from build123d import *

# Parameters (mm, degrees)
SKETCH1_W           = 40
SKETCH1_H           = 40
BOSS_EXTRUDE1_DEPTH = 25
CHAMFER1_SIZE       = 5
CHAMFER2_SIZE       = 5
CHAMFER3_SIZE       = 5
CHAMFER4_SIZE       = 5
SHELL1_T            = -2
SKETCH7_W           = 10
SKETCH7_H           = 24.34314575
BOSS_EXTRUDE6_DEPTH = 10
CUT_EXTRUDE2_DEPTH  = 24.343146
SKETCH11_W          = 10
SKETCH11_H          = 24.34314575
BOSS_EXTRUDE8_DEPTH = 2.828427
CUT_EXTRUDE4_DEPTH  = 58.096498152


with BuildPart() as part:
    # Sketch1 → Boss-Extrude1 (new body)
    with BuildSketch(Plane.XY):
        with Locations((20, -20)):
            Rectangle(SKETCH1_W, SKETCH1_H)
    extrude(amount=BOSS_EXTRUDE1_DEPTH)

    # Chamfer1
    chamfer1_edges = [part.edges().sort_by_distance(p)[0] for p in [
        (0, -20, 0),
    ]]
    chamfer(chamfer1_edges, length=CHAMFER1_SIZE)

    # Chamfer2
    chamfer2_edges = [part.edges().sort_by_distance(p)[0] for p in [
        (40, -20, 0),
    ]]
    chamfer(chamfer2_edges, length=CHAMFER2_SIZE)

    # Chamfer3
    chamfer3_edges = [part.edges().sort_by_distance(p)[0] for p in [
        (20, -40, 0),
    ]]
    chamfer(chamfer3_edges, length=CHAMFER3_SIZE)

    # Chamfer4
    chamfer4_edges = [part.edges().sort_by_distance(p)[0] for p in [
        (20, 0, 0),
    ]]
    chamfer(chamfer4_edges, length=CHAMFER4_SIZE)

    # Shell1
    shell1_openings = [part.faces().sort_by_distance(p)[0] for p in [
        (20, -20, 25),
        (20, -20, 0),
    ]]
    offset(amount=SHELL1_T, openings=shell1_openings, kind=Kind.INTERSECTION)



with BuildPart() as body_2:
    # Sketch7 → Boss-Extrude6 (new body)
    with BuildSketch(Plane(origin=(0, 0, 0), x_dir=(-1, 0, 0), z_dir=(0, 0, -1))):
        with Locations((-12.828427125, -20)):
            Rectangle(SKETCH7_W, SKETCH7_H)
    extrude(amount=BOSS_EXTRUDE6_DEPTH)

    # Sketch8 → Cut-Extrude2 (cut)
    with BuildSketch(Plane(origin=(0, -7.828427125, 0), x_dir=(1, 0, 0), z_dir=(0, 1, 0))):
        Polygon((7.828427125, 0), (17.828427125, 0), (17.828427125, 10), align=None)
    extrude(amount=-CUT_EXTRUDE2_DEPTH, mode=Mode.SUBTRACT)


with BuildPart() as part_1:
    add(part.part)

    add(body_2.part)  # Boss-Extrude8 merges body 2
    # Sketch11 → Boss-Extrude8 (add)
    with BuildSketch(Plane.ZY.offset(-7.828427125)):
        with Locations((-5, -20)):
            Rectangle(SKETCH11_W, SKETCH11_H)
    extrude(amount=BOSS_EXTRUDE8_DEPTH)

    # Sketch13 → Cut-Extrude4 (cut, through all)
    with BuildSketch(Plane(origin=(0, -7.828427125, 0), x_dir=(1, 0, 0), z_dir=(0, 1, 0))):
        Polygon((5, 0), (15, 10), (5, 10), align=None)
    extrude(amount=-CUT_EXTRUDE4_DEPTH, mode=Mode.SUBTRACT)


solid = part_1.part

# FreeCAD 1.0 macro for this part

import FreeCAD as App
import Part
import Sketcher
Q = App.Units.Quantity


def edges_at(feature, points):
    """Names of the edges that pass closest to the given points."""
    edges = feature.Shape.Edges
    near = lambda p: min(range(len(edges)), key=lambda i: edges[i].distToShape(Part.Vertex(*p))[0])
    return sorted({f"Edge{near(p) + 1}" for p in points})


def faces_at(feature, points):
    """Names of the faces that lie closest to the given points."""
    faces = feature.Shape.Faces
    near = lambda p: min(range(len(faces)), key=lambda i: faces[i].distToShape(Part.Vertex(*p))[0])
    return sorted({f"Face{near(p) + 1}" for p in points})

doc = App.newDocument("Part")
body = doc.addObject("PartDesign::Body", "Body")

sketch1 = doc.addObject("Sketcher::SketchObject", "Sketch")
body.addObject(sketch1)
sketch1.AttachmentSupport = (doc.XY_Plane, [""])
sketch1.MapMode = "FlatFace"
sketch1.addGeometry(Part.LineSegment(App.Vector(0, 0, 0), App.Vector(0, -40, 0)), False)
sketch1.addGeometry(Part.LineSegment(App.Vector(0, -40, 0), App.Vector(40, -40, 0)), False)
sketch1.addGeometry(Part.LineSegment(App.Vector(40, -40, 0), App.Vector(40, 0, 0)), False)
sketch1.addGeometry(Part.LineSegment(App.Vector(40, 0, 0), App.Vector(0, 0, 0)), False)
sketch1.addConstraint(Sketcher.Constraint("Coincident", 0, 2, 1, 1))
sketch1.addConstraint(Sketcher.Constraint("Coincident", 1, 2, 2, 1))
sketch1.addConstraint(Sketcher.Constraint("Coincident", 2, 2, 3, 1))
sketch1.addConstraint(Sketcher.Constraint("Coincident", 3, 2, 0, 1))
sketch1.addConstraint(Sketcher.Constraint("Vertical", 0))
sketch1.addConstraint(Sketcher.Constraint("Horizontal", 1))
sketch1.addConstraint(Sketcher.Constraint("Vertical", 2))
sketch1.addConstraint(Sketcher.Constraint("Horizontal", 3))
sketch1.addConstraint(Sketcher.Constraint("Coincident", 3, 2, -1, 1))
sketch1.addConstraint(Sketcher.Constraint("Equal", 3, 0))
sketch1.addConstraint(Sketcher.Constraint("DistanceX", 1, 1, 1, 2, Q("40 mm")))
pad1 = doc.addObject("PartDesign::Pad", "Pad")
body.addObject(pad1)
pad1.Profile = sketch1
pad1.Length = 25
doc.recompute()

chamfer = doc.addObject("PartDesign::Chamfer", "Chamfer")
body.addObject(chamfer)
chamfer.Base = (pad1, edges_at(pad1, [(0, -20, 0)]))
chamfer.Size = 5
doc.recompute()

chamfer2 = doc.addObject("PartDesign::Chamfer", "Chamfer001")
body.addObject(chamfer2)
chamfer2.Base = (chamfer, edges_at(chamfer, [(40, -20, 0)]))
chamfer2.Size = 5
doc.recompute()

chamfer3 = doc.addObject("PartDesign::Chamfer", "Chamfer002")
body.addObject(chamfer3)
chamfer3.Base = (chamfer2, edges_at(chamfer2, [(20, -40, 0)]))
chamfer3.Size = 5
doc.recompute()

chamfer4 = doc.addObject("PartDesign::Chamfer", "Chamfer003")
body.addObject(chamfer4)
chamfer4.Base = (chamfer3, edges_at(chamfer3, [(20, 0, 0)]))
chamfer4.Size = 5
doc.recompute()

thickness = doc.addObject("PartDesign::Thickness", "Thickness")
body.addObject(thickness)
thickness.Base = (chamfer4, faces_at(chamfer4, [(20, -20, 25), (20, -20, 0)]))
thickness.Value = 2
thickness.Reversed = True
thickness.Join = "Intersection"
body2 = doc.addObject("PartDesign::Body", "Body001")

sketch2 = doc.addObject("Sketcher::SketchObject", "Sketch001")
body2.addObject(sketch2)
sketch2.AttachmentSupport = (doc.getObject("XY_Plane001"), [""])
sketch2.MapMode = "FlatFace"
sketch2.addGeometry(Part.LineSegment(App.Vector(18, -8, 0), App.Vector(18, -32, 0)), False)
sketch2.addGeometry(Part.LineSegment(App.Vector(18, -32, 0), App.Vector(8, -32, 0)), False)
sketch2.addGeometry(Part.LineSegment(App.Vector(8, -32, 0), App.Vector(8, -8, 0)), False)
sketch2.addGeometry(Part.LineSegment(App.Vector(8, -8, 0), App.Vector(18, -8, 0)), False)
sketch2.addConstraint(Sketcher.Constraint("Coincident", 0, 2, 1, 1))
sketch2.addConstraint(Sketcher.Constraint("Coincident", 1, 2, 2, 1))
sketch2.addConstraint(Sketcher.Constraint("Coincident", 2, 2, 3, 1))
sketch2.addConstraint(Sketcher.Constraint("Coincident", 3, 2, 0, 1))
sketch2.addConstraint(Sketcher.Constraint("Vertical", 0))
sketch2.addConstraint(Sketcher.Constraint("Horizontal", 1))
sketch2.addConstraint(Sketcher.Constraint("Vertical", 2))
sketch2.addConstraint(Sketcher.Constraint("Horizontal", 3))
sketch2.addConstraint(Sketcher.Constraint("DistanceX", 1, 2, 1, 1, Q("10 mm")))
sketch2.addConstraint(Sketcher.Constraint("DistanceY", 0, 2, 0, 1, Q("24.343146 mm")))
sketch2.addConstraint(Sketcher.Constraint("DistanceX", -1, 1, 0, 2, Q("17.828427 mm")))
sketch2.addConstraint(Sketcher.Constraint("DistanceY", 0, 2, -1, 1, Q("32.171573 mm")))
pad2 = doc.addObject("PartDesign::Pad", "Pad001")
body2.addObject(pad2)
pad2.Profile = sketch2
pad2.Length = 10
pad2.Reversed = True

sketch3 = doc.addObject("Sketcher::SketchObject", "Sketch002")
body2.addObject(sketch3)
sketch3.AttachmentSupport = (doc.getObject("XZ_Plane001"), [""])
sketch3.MapMode = "FlatFace"
sketch3.AttachmentOffset = App.Placement(App.Vector(0, 0, 7.828427), App.Rotation())
sketch3.addGeometry(Part.LineSegment(App.Vector(8, 0, 0), App.Vector(18, 0, 0)), False)
sketch3.addGeometry(Part.LineSegment(App.Vector(18, 0, 0), App.Vector(18, -10, 0)), False)
sketch3.addGeometry(Part.LineSegment(App.Vector(18, -10, 0), App.Vector(8, 0, 0)), False)
sketch3.addConstraint(Sketcher.Constraint("Coincident", 0, 2, 1, 1))
sketch3.addConstraint(Sketcher.Constraint("Coincident", 1, 2, 2, 1))
sketch3.addConstraint(Sketcher.Constraint("Coincident", 2, 2, 0, 1))
sketch3.addConstraint(Sketcher.Constraint("Horizontal", 0))
sketch3.addConstraint(Sketcher.Constraint("Vertical", 1))
sketch3.addConstraint(Sketcher.Constraint("PointOnObject", 0, 2, -1))
sketch3.addConstraint(Sketcher.Constraint("Equal", 0, 1))
sketch3.addConstraint(Sketcher.Constraint("DistanceX", 0, 1, 0, 2, Q("10 mm")))
sketch3.addConstraint(Sketcher.Constraint("DistanceX", -1, 1, 0, 2, Q("17.828427 mm")))
pocket1 = doc.addObject("PartDesign::Pocket", "Pocket")
body2.addObject(pocket1)
pocket1.Profile = sketch3
pocket1.Length = 24.343146
pocket1.Reversed = True
body.AllowCompound = True
doc.recompute()

boolean = doc.addObject("PartDesign::Boolean", "Boolean")
body.addObject(boolean)
boolean.Type = "Fuse"
boolean.addObjects([body2])

sketch4 = doc.addObject("Sketcher::SketchObject", "Sketch003")
body.addObject(sketch4)
sketch4.AttachmentSupport = (doc.YZ_Plane, [""])
sketch4.MapMode = "FlatFace"
sketch4.AttachmentOffset = App.Placement(App.Vector(0, 0, 7.828427), App.Rotation())
sketch4.addGeometry(Part.LineSegment(App.Vector(-8, -10, 0), App.Vector(-32, -10, 0)), False)
sketch4.addGeometry(Part.LineSegment(App.Vector(-32, -10, 0), App.Vector(-32, 0, 0)), False)
sketch4.addGeometry(Part.LineSegment(App.Vector(-32, 0, 0), App.Vector(-8, 0, 0)), False)
sketch4.addGeometry(Part.LineSegment(App.Vector(-8, 0, 0), App.Vector(-8, -10, 0)), False)
sketch4.addConstraint(Sketcher.Constraint("Coincident", 0, 2, 1, 1))
sketch4.addConstraint(Sketcher.Constraint("Coincident", 1, 2, 2, 1))
sketch4.addConstraint(Sketcher.Constraint("Coincident", 2, 2, 3, 1))
sketch4.addConstraint(Sketcher.Constraint("Coincident", 3, 2, 0, 1))
sketch4.addConstraint(Sketcher.Constraint("Horizontal", 0))
sketch4.addConstraint(Sketcher.Constraint("Vertical", 1))
sketch4.addConstraint(Sketcher.Constraint("Horizontal", 2))
sketch4.addConstraint(Sketcher.Constraint("Vertical", 3))
sketch4.addConstraint(Sketcher.Constraint("PointOnObject", 1, 2, -1))
sketch4.addConstraint(Sketcher.Constraint("DistanceY", 1, 1, 1, 2, Q("10 mm")))
sketch4.addConstraint(Sketcher.Constraint("DistanceX", 0, 2, 0, 1, Q("24.343146 mm")))
sketch4.addConstraint(Sketcher.Constraint("DistanceX", 0, 2, -1, 1, Q("32.171573 mm")))
pad3 = doc.addObject("PartDesign::Pad", "Pad002")
body.addObject(pad3)
pad3.Profile = sketch4
pad3.Length = 2.828427
pad3.Reversed = True

sketch5 = doc.addObject("Sketcher::SketchObject", "Sketch004")
body.addObject(sketch5)
sketch5.AttachmentSupport = (doc.XZ_Plane, [""])
sketch5.MapMode = "FlatFace"
sketch5.AttachmentOffset = App.Placement(App.Vector(0, 0, 7.828427), App.Rotation())
sketch5.addGeometry(Part.LineSegment(App.Vector(5, 0, 0), App.Vector(15, -10, 0)), False)
sketch5.addGeometry(Part.LineSegment(App.Vector(15, -10, 0), App.Vector(5, -10, 0)), False)
sketch5.addGeometry(Part.LineSegment(App.Vector(5, -10, 0), App.Vector(5, 0, 0)), False)
sketch5.addConstraint(Sketcher.Constraint("Coincident", 0, 2, 1, 1))
sketch5.addConstraint(Sketcher.Constraint("Coincident", 1, 2, 2, 1))
sketch5.addConstraint(Sketcher.Constraint("Coincident", 2, 2, 0, 1))
sketch5.addConstraint(Sketcher.Constraint("Horizontal", 1))
sketch5.addConstraint(Sketcher.Constraint("Vertical", 2))
sketch5.addConstraint(Sketcher.Constraint("PointOnObject", 2, 2, -1))
sketch5.addConstraint(Sketcher.Constraint("Equal", 1, 2))
sketch5.addConstraint(Sketcher.Constraint("DistanceX", 1, 2, 1, 1, Q("10 mm")))
sketch5.addConstraint(Sketcher.Constraint("DistanceX", -1, 1, 0, 2, Q("15 mm")))
pocket2 = doc.addObject("PartDesign::Pocket", "Pocket001")
body.addObject(pocket2)
pocket2.Profile = sketch5
pocket2.Type = "ThroughAll"
pocket2.Reversed = True

doc.recompute()
